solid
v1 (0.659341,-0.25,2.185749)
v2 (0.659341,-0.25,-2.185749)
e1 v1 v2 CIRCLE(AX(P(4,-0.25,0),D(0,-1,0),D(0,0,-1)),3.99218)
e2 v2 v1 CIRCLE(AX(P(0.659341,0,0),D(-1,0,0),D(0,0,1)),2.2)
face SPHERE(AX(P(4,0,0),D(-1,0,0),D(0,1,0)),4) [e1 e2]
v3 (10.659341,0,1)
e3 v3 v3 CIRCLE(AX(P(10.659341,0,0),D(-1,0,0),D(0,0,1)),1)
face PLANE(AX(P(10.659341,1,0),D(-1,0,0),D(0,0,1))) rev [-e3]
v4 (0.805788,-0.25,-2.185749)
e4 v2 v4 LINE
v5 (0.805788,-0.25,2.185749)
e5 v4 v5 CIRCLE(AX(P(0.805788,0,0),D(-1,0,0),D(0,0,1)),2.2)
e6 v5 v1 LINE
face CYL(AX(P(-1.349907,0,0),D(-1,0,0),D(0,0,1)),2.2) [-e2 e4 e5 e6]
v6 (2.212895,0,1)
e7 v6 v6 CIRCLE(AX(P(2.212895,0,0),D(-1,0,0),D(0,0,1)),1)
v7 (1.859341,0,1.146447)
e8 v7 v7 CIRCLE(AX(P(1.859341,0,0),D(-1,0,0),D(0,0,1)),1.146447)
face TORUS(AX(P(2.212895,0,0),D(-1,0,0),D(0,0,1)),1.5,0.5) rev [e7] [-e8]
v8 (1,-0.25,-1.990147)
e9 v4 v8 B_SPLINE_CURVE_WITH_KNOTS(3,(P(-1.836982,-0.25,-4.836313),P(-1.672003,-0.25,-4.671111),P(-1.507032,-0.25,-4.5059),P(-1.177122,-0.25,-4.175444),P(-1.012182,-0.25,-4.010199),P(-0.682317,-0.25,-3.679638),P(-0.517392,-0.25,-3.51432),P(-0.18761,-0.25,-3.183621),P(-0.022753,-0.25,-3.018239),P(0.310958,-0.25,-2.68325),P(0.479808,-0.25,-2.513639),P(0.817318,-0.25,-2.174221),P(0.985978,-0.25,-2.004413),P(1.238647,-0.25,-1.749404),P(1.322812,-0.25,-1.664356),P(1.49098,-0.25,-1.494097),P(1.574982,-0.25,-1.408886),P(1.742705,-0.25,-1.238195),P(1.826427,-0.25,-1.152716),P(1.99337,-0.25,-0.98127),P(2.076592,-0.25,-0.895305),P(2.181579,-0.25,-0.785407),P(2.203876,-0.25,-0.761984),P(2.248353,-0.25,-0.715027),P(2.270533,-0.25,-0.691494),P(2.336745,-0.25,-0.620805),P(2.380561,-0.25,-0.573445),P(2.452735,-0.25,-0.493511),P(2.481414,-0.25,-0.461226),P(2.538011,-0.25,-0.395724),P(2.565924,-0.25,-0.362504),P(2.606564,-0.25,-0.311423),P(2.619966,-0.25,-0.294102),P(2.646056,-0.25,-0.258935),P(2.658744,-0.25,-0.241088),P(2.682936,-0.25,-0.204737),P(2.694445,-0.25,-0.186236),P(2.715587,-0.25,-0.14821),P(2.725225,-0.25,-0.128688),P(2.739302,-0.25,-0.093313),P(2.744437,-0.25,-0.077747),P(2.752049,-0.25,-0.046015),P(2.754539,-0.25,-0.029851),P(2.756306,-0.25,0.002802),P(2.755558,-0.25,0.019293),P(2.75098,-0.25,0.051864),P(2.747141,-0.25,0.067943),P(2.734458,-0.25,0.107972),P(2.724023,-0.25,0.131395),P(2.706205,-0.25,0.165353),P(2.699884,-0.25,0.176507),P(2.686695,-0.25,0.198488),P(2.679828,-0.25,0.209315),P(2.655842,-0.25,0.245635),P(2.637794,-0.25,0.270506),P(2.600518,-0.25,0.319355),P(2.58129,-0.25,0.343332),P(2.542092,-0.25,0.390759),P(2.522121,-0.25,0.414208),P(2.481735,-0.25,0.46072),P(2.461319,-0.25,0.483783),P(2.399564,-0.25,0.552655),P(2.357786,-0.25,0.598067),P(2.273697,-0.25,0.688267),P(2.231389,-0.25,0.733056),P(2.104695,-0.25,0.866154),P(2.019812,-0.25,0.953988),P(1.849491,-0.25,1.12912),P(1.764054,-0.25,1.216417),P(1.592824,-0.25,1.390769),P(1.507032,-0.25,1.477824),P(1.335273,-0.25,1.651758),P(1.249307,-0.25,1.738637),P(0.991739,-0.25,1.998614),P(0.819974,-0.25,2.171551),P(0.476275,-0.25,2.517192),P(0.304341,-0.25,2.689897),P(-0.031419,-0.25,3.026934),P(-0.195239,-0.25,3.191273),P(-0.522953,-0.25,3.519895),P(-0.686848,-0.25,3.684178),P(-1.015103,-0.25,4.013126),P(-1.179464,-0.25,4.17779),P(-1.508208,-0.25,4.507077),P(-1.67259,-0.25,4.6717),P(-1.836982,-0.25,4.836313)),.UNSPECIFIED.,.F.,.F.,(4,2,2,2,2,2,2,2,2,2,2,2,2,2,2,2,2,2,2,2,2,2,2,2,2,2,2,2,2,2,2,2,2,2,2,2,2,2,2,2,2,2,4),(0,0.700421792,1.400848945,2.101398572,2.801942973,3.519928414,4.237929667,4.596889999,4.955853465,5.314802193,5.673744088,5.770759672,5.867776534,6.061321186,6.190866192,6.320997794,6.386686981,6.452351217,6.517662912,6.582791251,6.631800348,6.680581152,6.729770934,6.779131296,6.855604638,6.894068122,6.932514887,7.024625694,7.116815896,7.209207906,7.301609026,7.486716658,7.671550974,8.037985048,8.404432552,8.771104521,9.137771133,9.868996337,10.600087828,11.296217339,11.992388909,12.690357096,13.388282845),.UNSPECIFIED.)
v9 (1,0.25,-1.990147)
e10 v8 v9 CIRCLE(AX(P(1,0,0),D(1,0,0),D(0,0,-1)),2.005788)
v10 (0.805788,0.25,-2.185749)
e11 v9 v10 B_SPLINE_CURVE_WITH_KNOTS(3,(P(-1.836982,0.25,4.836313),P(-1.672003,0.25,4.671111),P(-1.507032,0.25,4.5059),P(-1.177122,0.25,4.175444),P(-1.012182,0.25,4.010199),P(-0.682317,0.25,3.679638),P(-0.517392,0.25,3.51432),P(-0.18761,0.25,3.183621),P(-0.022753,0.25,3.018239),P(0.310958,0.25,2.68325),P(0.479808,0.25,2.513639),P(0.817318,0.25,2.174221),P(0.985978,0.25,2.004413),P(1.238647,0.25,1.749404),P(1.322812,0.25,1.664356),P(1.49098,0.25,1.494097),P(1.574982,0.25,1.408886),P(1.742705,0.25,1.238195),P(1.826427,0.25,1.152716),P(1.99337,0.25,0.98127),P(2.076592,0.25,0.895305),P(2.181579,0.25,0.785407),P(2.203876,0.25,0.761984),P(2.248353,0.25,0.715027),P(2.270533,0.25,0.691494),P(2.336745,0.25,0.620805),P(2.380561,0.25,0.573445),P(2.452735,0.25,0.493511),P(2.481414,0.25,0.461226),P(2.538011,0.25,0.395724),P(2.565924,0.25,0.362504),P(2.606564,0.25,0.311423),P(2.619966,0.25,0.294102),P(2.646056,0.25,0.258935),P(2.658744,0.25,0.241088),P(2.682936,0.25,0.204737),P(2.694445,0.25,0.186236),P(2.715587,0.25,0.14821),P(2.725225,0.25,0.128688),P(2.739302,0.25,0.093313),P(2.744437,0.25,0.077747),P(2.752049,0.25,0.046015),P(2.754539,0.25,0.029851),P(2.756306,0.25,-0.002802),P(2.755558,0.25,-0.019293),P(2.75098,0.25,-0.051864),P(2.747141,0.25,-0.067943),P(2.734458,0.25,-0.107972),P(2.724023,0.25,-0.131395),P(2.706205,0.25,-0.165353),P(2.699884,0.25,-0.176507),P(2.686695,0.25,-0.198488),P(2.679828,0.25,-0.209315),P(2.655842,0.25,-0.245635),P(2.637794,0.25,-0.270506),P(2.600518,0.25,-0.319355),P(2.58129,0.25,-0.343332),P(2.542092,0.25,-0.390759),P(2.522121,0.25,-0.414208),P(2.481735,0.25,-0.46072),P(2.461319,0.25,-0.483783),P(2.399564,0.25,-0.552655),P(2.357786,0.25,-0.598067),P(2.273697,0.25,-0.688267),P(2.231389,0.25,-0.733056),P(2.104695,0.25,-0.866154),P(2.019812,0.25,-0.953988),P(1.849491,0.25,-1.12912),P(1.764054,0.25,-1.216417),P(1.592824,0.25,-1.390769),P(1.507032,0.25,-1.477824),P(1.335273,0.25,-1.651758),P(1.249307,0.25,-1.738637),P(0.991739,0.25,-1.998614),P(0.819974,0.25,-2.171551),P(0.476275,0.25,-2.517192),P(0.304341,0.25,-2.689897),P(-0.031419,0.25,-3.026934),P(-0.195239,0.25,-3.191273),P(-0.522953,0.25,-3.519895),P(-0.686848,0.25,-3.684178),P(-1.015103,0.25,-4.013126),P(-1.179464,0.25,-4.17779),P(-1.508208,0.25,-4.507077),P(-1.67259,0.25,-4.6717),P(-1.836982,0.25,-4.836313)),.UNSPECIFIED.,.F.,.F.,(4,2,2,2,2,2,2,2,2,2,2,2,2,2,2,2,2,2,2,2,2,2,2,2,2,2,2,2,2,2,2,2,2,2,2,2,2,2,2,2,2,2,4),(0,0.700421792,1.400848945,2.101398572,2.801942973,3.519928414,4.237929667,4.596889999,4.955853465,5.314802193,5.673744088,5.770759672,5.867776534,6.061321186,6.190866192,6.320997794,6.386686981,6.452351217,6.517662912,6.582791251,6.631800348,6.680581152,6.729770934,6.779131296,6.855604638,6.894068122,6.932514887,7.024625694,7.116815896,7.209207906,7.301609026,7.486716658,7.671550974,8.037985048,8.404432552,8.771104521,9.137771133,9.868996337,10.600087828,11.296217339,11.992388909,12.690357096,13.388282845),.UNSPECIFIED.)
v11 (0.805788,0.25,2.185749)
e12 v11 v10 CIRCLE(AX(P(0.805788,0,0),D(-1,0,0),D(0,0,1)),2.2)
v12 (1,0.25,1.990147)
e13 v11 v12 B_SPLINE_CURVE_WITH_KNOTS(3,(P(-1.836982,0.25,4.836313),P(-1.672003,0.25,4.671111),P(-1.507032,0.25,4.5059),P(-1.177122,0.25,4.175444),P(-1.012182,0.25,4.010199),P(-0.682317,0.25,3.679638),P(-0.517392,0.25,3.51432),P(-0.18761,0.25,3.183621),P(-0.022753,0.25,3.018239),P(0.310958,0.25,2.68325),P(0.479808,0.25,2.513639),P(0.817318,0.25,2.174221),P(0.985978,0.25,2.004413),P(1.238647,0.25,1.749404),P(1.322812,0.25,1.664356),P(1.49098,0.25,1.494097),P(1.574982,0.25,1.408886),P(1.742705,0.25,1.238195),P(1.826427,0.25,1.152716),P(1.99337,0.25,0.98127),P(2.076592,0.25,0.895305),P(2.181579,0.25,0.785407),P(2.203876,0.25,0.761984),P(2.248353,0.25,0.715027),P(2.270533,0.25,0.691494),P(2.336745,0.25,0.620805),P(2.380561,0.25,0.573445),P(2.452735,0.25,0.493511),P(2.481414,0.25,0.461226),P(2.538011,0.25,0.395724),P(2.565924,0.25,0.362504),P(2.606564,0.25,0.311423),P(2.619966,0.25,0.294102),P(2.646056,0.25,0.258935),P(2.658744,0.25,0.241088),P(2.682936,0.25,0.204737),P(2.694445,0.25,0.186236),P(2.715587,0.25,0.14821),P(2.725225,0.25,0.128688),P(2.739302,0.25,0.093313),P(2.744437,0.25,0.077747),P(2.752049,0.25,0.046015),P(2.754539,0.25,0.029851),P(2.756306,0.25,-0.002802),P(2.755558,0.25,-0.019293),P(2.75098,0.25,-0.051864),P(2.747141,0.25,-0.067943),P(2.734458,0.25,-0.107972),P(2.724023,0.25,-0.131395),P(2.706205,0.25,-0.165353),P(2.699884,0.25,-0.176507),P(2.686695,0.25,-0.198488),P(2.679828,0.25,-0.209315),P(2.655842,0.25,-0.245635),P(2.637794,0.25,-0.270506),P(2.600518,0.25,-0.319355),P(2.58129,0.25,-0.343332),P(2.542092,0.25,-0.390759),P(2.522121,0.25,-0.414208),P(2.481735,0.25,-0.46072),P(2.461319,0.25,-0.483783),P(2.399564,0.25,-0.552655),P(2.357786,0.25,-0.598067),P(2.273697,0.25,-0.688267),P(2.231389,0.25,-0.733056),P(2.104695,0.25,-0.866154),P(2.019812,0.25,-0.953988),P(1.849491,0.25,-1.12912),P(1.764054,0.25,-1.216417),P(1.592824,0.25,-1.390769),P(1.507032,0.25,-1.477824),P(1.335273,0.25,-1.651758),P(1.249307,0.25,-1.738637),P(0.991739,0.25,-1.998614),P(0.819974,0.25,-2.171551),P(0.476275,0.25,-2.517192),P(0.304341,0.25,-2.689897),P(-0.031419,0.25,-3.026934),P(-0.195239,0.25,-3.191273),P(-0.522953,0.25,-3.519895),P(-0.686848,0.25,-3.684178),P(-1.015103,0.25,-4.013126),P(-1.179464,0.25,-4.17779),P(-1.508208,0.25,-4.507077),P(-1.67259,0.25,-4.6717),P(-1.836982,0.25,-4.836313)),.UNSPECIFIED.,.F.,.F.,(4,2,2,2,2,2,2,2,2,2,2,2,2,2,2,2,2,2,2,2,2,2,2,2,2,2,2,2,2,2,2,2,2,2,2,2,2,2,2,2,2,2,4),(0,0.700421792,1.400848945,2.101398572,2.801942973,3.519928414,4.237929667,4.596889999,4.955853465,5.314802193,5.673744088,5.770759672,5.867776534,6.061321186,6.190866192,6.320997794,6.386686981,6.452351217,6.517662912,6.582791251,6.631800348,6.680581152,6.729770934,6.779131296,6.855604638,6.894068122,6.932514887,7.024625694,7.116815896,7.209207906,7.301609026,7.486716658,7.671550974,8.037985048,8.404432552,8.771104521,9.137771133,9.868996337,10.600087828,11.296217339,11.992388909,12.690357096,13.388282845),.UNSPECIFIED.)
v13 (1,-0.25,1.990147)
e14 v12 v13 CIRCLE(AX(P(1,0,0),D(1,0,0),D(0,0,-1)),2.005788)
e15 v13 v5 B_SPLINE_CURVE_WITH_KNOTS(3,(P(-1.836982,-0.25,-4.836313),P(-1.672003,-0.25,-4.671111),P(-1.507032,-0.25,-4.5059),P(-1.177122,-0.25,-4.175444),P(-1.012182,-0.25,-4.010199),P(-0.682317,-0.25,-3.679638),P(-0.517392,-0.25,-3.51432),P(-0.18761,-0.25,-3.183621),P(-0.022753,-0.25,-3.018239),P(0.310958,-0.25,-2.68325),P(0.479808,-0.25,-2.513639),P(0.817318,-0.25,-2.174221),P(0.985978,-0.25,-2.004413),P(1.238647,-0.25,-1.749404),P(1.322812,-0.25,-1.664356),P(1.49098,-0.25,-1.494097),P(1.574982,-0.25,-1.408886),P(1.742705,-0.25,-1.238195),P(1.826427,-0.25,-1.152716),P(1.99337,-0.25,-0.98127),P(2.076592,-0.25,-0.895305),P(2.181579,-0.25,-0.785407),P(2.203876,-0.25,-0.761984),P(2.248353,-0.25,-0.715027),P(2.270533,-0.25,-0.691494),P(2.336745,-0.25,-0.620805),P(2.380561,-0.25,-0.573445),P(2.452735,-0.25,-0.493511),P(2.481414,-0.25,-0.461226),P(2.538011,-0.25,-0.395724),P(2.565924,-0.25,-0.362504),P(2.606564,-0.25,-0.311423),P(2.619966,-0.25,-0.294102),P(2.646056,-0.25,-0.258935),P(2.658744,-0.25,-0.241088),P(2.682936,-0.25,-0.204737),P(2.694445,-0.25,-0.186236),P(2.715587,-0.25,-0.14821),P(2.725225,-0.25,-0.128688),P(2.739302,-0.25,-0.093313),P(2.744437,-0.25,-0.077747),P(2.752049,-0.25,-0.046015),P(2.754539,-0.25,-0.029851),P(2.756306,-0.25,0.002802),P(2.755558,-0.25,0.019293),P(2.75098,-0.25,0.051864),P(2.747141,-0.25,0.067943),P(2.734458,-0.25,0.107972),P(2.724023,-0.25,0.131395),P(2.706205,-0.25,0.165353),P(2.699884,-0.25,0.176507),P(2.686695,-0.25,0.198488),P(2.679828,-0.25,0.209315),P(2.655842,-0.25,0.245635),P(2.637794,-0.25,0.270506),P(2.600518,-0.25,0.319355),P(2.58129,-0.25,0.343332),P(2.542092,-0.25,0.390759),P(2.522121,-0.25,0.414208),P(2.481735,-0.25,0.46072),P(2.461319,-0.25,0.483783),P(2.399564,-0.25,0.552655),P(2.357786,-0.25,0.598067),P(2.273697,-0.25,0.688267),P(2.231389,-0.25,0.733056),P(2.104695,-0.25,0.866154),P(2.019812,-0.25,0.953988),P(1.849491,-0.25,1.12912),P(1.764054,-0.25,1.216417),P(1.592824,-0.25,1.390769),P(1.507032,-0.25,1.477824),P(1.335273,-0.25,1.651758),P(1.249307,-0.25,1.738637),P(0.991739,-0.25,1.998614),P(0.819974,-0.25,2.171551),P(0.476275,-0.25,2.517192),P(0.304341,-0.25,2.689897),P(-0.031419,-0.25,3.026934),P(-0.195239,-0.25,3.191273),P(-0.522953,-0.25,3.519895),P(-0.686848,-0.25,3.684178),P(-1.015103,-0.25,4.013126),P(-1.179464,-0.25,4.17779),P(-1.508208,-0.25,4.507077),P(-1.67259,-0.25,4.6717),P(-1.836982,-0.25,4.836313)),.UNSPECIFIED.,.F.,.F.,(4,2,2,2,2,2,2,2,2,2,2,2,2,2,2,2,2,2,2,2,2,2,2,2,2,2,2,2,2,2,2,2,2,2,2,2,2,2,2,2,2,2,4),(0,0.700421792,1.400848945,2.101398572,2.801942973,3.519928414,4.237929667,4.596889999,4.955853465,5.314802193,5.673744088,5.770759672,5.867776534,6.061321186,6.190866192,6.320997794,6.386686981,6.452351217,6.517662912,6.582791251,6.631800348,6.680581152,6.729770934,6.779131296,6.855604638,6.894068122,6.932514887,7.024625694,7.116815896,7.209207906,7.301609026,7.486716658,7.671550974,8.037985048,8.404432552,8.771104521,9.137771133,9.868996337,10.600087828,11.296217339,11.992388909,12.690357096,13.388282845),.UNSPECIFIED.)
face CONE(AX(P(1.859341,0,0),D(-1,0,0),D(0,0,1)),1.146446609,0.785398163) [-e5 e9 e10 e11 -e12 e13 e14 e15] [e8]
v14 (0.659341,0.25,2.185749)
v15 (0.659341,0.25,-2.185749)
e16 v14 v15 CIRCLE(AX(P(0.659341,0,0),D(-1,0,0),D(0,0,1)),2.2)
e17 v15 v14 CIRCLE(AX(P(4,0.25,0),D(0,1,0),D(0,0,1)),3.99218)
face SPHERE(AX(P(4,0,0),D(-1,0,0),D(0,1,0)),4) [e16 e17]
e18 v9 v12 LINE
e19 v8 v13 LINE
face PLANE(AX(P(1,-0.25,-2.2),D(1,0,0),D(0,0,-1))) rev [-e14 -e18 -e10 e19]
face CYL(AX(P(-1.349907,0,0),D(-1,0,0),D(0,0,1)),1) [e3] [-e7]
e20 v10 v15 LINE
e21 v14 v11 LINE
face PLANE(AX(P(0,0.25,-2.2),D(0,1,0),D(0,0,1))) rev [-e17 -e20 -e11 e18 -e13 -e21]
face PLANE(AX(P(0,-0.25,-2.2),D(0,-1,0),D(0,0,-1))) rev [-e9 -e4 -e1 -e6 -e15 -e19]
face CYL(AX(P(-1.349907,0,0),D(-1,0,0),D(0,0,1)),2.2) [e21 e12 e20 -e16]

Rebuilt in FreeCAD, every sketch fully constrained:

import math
import FreeCAD as App
import Part
import Sketcher
Q = App.Units.Quantity


def add_polygon(sketch, points):
    """Adds a closed chain of lines whose ends are joined by coincident constraints."""
    first, n = sketch.GeometryCount, len(points)
    for a, b in zip(points, points[1:] + points[:1]):
        sketch.addGeometry(Part.LineSegment(App.Vector(*a, 0), App.Vector(*b, 0)), False)
    for i in range(n):
        sketch.addConstraint(Sketcher.Constraint("Coincident", first + i, 2, first + (i + 1) % n, 1))

doc = App.newDocument("Part")
params = doc.addObject("Spreadsheet::Sheet", "Params")
for row, (alias, value) in enumerate([
    ("sketch1_radius", "4 mm"),
    ("sketch1_radius2", "0.5 mm"),
    ("sketch1_height", "1 mm"),
    ("revolution_angle", "360 deg"),
    ("sketch2_width", "1 mm"),
    ("sketch2_height", "0.5 mm"),
], start=1):
    params.set(f"A{row}", alias)
    params.set(f"B{row}", "=" + value)
    params.setAlias(f"B{row}", alias)

body = doc.addObject("PartDesign::Body", "Body")

sketch1 = body.newObject("Sketcher::SketchObject", "Sketch")
sketch1.AttachmentSupport = (doc.getObject("XY_Plane"), [""])
sketch1.MapMode = "FlatFace"
sketch1.addGeometry(Part.LineSegment(App.Vector(0.805788, 2.2, 0), App.Vector(0.659341, 2.2, 0)), False)
sketch1.addGeometry(Part.ArcOfCircle(Part.Circle(App.Vector(4, 0, 0), App.Vector(0, 0, 1), 4), math.radians(146.632987), math.radians(180)), False)
sketch1.addGeometry(Part.LineSegment(App.Vector(0, 0, 0), App.Vector(10.659341, 0, 0)), False)
sketch1.addGeometry(Part.LineSegment(App.Vector(10.659341, 0, 0), App.Vector(10.659341, 1, 0)), False)
sketch1.addGeometry(Part.LineSegment(App.Vector(10.659341, 1, 0), App.Vector(2.212895, 1, 0)), False)
sketch1.addGeometry(Part.ArcOfCircle(Part.Circle(App.Vector(2.212895, 1.5, 0), App.Vector(0, 0, 1), 0.5), math.radians(-135), math.radians(-90)), False)
sketch1.addGeometry(Part.LineSegment(App.Vector(1.859341, 1.146447, 0), App.Vector(0.805788, 2.2, 0)), False)
sketch1.addConstraint(Sketcher.Constraint("Coincident", 0, 2, 1, 1))
sketch1.addConstraint(Sketcher.Constraint("Coincident", 1, 2, 2, 1))
sketch1.addConstraint(Sketcher.Constraint("Coincident", 2, 2, 3, 1))
sketch1.addConstraint(Sketcher.Constraint("Coincident", 3, 2, 4, 1))
sketch1.addConstraint(Sketcher.Constraint("Tangent", 4, 2, 5, 2))
sketch1.addConstraint(Sketcher.Constraint("Tangent", 5, 1, 6, 1))
sketch1.addConstraint(Sketcher.Constraint("Coincident", 6, 2, 0, 1))
sketch1.addConstraint(Sketcher.Constraint("Horizontal", 0))
sketch1.addConstraint(Sketcher.Constraint("Horizontal", 2))
sketch1.addConstraint(Sketcher.Constraint("Vertical", 3))
sketch1.addConstraint(Sketcher.Constraint("Horizontal", 4))
sketch1.addConstraint(Sketcher.Constraint("Coincident", 1, 2, -1, 1))
sketch1.addConstraint(Sketcher.Constraint("PointOnObject", 1, 3, -1))
sketch1.addConstraint(Sketcher.Constraint("Radius", 1, Q("4 mm")))
sketch1.addConstraint(Sketcher.Constraint("Radius", 5, Q("0.5 mm")))
sketch1.addConstraint(Sketcher.Constraint("DistanceY", 3, 1, 3, 2, Q("1 mm")))
sketch1.addConstraint(Sketcher.Constraint("Angle", 6, Q("135 deg")))
sketch1.addConstraint(Sketcher.Constraint("DistanceX", 0, 2, 2, 2, Q("10 mm")))
sketch1.addConstraint(Sketcher.Constraint("DistanceY", -1, 1, 0, 2, Q("2.2 mm")))
sketch1.addConstraint(Sketcher.Constraint("DistanceX", 0, 2, 5, 1, Q("1.2 mm")))
sketch1.setExpression("Constraints[13]", "Params.sketch1_radius")
sketch1.setExpression("Constraints[14]", "Params.sketch1_radius2")
sketch1.setExpression("Constraints[15]", "Params.sketch1_height")
revolution = body.newObject("PartDesign::Revolution", "Revolution")
revolution.Profile = sketch1
revolution.ReferenceAxis = (sketch1, ["H_Axis"])
revolution.setExpression("Angle", "Params.revolution_angle")

sketch2 = body.newObject("Sketcher::SketchObject", "Sketch001")
sketch2.AttachmentSupport = (doc.getObject("XY_Plane"), [""])
sketch2.MapMode = "FlatFace"
add_polygon(sketch2, [(0, 0.25), (0, -0.25), (1, -0.25), (1, 0.25)])
sketch2.addConstraint(Sketcher.Constraint("Vertical", 0))
sketch2.addConstraint(Sketcher.Constraint("Horizontal", 1))
sketch2.addConstraint(Sketcher.Constraint("Vertical", 2))
sketch2.addConstraint(Sketcher.Constraint("Horizontal", 3))
sketch2.addConstraint(Sketcher.Constraint("Symmetric", 0, 2, 3, 2, -1, 1))
sketch2.addConstraint(Sketcher.Constraint("DistanceX", 1, 1, 1, 2, Q("1 mm")))
sketch2.addConstraint(Sketcher.Constraint("DistanceY", 0, 2, 0, 1, Q("0.5 mm")))
sketch2.setExpression("Constraints[9]", "Params.sketch2_width")
sketch2.setExpression("Constraints[10]", "Params.sketch2_height")
pocket1 = body.newObject("PartDesign::Pocket", "Pocket")
pocket1.Profile = sketch2
pocket1.Type = "ThroughAll"
pocket1.Midplane = True

doc.recompute()
